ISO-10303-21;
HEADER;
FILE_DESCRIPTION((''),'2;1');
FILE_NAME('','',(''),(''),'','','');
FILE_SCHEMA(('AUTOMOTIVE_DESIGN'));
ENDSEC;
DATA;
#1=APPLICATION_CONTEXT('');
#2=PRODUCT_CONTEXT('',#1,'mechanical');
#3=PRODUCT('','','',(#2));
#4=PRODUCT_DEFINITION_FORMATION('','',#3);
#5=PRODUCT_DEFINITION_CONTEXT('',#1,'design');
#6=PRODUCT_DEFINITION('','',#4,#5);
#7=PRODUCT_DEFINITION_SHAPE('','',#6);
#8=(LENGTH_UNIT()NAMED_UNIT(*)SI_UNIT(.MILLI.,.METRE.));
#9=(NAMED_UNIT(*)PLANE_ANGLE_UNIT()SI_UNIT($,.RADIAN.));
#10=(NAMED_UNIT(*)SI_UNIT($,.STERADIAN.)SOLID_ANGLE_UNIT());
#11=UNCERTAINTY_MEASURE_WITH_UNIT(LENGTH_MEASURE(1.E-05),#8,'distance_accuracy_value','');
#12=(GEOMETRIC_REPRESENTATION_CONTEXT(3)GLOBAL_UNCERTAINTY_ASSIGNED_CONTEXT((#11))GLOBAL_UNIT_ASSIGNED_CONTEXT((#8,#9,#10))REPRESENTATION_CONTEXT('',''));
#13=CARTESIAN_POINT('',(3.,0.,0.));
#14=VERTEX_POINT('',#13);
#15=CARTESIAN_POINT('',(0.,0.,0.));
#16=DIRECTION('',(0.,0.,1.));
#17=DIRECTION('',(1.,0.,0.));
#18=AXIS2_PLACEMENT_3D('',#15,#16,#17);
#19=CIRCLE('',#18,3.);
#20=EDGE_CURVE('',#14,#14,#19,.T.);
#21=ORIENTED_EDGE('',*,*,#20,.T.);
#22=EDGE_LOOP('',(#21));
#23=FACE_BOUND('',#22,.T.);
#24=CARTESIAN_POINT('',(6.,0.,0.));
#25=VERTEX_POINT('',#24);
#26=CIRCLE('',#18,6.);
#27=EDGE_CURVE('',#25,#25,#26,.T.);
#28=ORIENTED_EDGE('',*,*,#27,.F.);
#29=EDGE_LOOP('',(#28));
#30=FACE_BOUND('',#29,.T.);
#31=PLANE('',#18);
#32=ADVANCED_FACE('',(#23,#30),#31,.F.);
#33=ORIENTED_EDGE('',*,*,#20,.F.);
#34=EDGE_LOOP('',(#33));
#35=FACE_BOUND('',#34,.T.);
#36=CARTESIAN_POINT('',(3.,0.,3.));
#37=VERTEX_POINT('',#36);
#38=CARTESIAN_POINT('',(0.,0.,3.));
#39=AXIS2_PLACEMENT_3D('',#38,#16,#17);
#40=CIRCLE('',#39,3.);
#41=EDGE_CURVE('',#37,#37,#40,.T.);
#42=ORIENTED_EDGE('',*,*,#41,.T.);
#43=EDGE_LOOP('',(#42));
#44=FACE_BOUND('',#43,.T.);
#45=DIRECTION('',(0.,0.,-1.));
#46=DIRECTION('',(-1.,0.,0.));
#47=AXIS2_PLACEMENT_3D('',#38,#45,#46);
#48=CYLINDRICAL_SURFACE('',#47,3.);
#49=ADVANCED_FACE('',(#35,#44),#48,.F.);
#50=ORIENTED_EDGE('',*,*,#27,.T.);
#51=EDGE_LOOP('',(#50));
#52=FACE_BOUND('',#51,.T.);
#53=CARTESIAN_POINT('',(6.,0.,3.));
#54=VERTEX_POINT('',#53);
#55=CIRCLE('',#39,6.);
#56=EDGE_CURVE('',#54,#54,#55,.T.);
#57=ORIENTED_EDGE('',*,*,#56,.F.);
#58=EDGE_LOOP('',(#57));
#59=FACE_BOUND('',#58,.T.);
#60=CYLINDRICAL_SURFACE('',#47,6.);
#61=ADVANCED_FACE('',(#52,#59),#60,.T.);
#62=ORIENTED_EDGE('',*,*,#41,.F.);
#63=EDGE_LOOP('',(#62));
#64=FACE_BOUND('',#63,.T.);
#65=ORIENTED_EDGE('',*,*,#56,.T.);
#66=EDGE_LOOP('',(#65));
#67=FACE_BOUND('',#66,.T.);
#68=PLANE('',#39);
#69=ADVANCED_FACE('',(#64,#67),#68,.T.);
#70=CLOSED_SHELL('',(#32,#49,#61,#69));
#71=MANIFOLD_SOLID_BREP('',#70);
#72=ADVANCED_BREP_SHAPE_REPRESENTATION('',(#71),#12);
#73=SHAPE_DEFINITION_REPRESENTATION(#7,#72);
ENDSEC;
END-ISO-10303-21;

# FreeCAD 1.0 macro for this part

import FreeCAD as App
import Part
import Sketcher

doc = App.newDocument("Part")
body = doc.addObject("PartDesign::Body", "Body")

sketch1 = body.newObject("Sketcher::SketchObject", "Sketch")
sketch1.AttachmentSupport = (doc.getObject("XY_Plane"), [""])
sketch1.MapMode = "FlatFace"
sketch1.addGeometry([
    Part.Circle(App.Vector(0, 0, 0), App.Vector(0, 0, 1), 6),
    Part.Circle(App.Vector(0, 0, 0), App.Vector(0, 0, 1), 3),
], False)
sketch1.addConstraint([
    Sketcher.Constraint("Coincident", 0, 3, -1, 1),
    Sketcher.Constraint("Coincident", 1, 3, -1, 1),
    Sketcher.Constraint("Diameter", 0, 12.0),
    Sketcher.Constraint("Diameter", 1, 6.0),
])
pad1 = body.newObject("PartDesign::Pad", "Pad")
pad1.Profile = sketch1
pad1.Length = 3

doc.recompute()
